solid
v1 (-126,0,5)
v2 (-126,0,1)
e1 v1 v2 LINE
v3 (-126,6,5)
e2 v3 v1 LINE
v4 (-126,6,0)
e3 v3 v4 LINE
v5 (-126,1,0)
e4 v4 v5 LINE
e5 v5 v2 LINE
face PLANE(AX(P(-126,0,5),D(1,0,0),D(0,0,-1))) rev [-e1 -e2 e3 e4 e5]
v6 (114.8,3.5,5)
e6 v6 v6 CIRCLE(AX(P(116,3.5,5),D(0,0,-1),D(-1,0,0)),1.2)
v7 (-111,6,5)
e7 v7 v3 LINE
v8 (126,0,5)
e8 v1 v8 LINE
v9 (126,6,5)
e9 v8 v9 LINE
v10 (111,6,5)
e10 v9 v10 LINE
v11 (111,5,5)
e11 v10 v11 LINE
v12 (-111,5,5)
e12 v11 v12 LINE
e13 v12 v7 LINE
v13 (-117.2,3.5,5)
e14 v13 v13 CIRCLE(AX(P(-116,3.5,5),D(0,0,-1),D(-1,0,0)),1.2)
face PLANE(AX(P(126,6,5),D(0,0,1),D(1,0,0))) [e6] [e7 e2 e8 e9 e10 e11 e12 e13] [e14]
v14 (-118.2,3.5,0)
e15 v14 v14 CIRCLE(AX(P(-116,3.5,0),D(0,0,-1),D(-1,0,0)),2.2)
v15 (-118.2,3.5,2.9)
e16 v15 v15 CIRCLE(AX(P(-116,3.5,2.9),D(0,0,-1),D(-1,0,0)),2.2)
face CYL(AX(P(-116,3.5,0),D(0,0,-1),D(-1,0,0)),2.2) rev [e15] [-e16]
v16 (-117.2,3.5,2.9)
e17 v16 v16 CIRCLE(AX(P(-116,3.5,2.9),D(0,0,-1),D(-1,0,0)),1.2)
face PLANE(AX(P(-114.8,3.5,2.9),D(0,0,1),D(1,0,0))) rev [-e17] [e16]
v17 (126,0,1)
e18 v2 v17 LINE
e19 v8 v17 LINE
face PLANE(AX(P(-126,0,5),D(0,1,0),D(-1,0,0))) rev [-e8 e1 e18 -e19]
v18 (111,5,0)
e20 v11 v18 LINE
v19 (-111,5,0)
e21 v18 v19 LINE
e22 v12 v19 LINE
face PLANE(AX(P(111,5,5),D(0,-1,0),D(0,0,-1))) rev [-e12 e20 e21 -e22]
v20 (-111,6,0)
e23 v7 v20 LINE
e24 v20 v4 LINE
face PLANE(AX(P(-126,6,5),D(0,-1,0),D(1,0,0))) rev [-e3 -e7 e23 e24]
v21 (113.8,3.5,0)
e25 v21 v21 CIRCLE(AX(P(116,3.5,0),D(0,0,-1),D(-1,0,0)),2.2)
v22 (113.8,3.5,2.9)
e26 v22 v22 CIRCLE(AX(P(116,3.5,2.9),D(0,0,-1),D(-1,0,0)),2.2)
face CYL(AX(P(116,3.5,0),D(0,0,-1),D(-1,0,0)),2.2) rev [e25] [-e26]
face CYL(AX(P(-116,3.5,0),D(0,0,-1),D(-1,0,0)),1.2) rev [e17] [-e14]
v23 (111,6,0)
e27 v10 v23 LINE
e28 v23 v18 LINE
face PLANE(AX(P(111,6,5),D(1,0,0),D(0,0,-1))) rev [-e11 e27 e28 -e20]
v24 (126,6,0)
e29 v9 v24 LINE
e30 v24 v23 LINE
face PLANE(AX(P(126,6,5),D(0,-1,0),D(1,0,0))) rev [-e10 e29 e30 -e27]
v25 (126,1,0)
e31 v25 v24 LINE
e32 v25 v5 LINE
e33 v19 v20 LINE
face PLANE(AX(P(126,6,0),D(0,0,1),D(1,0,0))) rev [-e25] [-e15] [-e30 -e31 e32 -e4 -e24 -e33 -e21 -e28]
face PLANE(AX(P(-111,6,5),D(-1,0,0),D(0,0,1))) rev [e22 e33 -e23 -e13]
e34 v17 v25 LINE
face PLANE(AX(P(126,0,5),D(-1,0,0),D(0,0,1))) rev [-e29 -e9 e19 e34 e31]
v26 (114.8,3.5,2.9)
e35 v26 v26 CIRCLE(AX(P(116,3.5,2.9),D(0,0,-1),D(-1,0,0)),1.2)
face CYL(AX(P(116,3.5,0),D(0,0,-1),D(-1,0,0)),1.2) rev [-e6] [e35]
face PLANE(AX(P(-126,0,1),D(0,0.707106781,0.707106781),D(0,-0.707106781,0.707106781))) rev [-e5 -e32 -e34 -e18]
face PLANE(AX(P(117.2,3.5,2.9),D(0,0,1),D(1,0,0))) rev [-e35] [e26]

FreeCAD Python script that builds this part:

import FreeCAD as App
import Part
import Sketcher
from FreeCAD import Vector


def edges_at(feature, points):
    """Names of the edges that pass closest to the given points."""
    edges = feature.Shape.Edges
    near = lambda p: min(range(len(edges)), key=lambda i: edges[i].distToShape(Part.Vertex(*p))[0])
    return sorted({f"Edge{near(p) + 1}" for p in points})

doc = App.newDocument("Part")
body = doc.addObject("PartDesign::Body", "Body")

sketch1 = body.newObject("Sketcher::SketchObject", "Sketch")
sketch1.AttachmentSupport = (doc.getObject("XY_Plane"), [""])
sketch1.MapMode = "FlatFace"
sketch1.addGeometry([
    Part.LineSegment(Vector(-126, 0, 0), Vector(126, 0, 0)),
    Part.LineSegment(Vector(126, 0, 0), Vector(126, 6, 0)),
    Part.LineSegment(Vector(126, 6, 0), Vector(111, 6, 0)),
    Part.LineSegment(Vector(111, 6, 0), Vector(111, 5, 0)),
    Part.LineSegment(Vector(111, 5, 0), Vector(-111, 5, 0)),
    Part.LineSegment(Vector(-111, 5, 0), Vector(-111, 6, 0)),
    Part.LineSegment(Vector(-111, 6, 0), Vector(-126, 6, 0)),
    Part.LineSegment(Vector(-126, 6, 0), Vector(-126, 0, 0)),
], False)
sketch1.addConstraint([
    Sketcher.Constraint("Coincident", 0, 2, 1, 1),
    Sketcher.Constraint("Coincident", 1, 2, 2, 1),
    Sketcher.Constraint("Coincident", 2, 2, 3, 1),
    Sketcher.Constraint("Coincident", 3, 2, 4, 1),
    Sketcher.Constraint("Coincident", 4, 2, 5, 1),
    Sketcher.Constraint("Coincident", 5, 2, 6, 1),
    Sketcher.Constraint("Coincident", 6, 2, 7, 1),
    Sketcher.Constraint("Coincident", 7, 2, 0, 1),
    Sketcher.Constraint("Horizontal", 0),
    Sketcher.Constraint("Vertical", 1),
    Sketcher.Constraint("Horizontal", 2),
    Sketcher.Constraint("Vertical", 3),
    Sketcher.Constraint("Horizontal", 4),
    Sketcher.Constraint("Vertical", 5),
    Sketcher.Constraint("Horizontal", 6),
    Sketcher.Constraint("Vertical", 7),
    Sketcher.Constraint("Symmetric", 0, 2, 7, 2, -1, 1),
    Sketcher.Constraint("Symmetric", 2, 2, 5, 2, -2),
    Sketcher.Constraint("DistanceX", 0, 1, 0, 2, 252.0),
    Sketcher.Constraint("DistanceX", 2, 2, 2, 1, 15.0),
    Sketcher.Constraint("DistanceY", 1, 1, 1, 2, 6.0),
    Sketcher.Constraint("DistanceY", 3, 2, 3, 1, 1.0),
])
pad1 = body.newObject("PartDesign::Pad", "Pad")
pad1.Profile = sketch1
pad1.Length = 5
doc.recompute()

chamfer = body.newObject("PartDesign::Chamfer", "Chamfer")
chamfer.Base = (pad1, edges_at(pad1, [(0, 0, 0)]))
chamfer.Size = 1

sketch2 = body.newObject("Sketcher::SketchObject", "Sketch001")
sketch2.AttachmentSupport = (doc.getObject("XY_Plane"), [""])
sketch2.MapMode = "FlatFace"
sketch2.addGeometry([
    Part.Circle(Vector(116, 3.5, 0), Vector(0, 0, 1), 1.2),
    Part.Circle(Vector(-116, 3.5, 0), Vector(0, 0, 1), 1.2),
], False)
sketch2.addConstraint([
    Sketcher.Constraint("Equal", 0, 1),
    Sketcher.Constraint("Symmetric", 0, 3, 1, 3, -2),
    Sketcher.Constraint("Diameter", 0, 2.4),
    Sketcher.Constraint("DistanceX", -1, 1, 0, 3, 116.0),
    Sketcher.Constraint("DistanceY", -1, 1, 0, 3, 3.5),
])
doc.recompute()
hole = body.newObject("PartDesign::Hole", "Hole")
hole.Profile = sketch2
hole.ThreadType = "None"
hole.Diameter = 2.4
hole.DepthType = "ThroughAll"
hole.HoleCutType = "Counterbore"
hole.HoleCutDiameter = 4.4
hole.HoleCutDepth = 2.9
hole.Reversed = True

doc.recompute()
